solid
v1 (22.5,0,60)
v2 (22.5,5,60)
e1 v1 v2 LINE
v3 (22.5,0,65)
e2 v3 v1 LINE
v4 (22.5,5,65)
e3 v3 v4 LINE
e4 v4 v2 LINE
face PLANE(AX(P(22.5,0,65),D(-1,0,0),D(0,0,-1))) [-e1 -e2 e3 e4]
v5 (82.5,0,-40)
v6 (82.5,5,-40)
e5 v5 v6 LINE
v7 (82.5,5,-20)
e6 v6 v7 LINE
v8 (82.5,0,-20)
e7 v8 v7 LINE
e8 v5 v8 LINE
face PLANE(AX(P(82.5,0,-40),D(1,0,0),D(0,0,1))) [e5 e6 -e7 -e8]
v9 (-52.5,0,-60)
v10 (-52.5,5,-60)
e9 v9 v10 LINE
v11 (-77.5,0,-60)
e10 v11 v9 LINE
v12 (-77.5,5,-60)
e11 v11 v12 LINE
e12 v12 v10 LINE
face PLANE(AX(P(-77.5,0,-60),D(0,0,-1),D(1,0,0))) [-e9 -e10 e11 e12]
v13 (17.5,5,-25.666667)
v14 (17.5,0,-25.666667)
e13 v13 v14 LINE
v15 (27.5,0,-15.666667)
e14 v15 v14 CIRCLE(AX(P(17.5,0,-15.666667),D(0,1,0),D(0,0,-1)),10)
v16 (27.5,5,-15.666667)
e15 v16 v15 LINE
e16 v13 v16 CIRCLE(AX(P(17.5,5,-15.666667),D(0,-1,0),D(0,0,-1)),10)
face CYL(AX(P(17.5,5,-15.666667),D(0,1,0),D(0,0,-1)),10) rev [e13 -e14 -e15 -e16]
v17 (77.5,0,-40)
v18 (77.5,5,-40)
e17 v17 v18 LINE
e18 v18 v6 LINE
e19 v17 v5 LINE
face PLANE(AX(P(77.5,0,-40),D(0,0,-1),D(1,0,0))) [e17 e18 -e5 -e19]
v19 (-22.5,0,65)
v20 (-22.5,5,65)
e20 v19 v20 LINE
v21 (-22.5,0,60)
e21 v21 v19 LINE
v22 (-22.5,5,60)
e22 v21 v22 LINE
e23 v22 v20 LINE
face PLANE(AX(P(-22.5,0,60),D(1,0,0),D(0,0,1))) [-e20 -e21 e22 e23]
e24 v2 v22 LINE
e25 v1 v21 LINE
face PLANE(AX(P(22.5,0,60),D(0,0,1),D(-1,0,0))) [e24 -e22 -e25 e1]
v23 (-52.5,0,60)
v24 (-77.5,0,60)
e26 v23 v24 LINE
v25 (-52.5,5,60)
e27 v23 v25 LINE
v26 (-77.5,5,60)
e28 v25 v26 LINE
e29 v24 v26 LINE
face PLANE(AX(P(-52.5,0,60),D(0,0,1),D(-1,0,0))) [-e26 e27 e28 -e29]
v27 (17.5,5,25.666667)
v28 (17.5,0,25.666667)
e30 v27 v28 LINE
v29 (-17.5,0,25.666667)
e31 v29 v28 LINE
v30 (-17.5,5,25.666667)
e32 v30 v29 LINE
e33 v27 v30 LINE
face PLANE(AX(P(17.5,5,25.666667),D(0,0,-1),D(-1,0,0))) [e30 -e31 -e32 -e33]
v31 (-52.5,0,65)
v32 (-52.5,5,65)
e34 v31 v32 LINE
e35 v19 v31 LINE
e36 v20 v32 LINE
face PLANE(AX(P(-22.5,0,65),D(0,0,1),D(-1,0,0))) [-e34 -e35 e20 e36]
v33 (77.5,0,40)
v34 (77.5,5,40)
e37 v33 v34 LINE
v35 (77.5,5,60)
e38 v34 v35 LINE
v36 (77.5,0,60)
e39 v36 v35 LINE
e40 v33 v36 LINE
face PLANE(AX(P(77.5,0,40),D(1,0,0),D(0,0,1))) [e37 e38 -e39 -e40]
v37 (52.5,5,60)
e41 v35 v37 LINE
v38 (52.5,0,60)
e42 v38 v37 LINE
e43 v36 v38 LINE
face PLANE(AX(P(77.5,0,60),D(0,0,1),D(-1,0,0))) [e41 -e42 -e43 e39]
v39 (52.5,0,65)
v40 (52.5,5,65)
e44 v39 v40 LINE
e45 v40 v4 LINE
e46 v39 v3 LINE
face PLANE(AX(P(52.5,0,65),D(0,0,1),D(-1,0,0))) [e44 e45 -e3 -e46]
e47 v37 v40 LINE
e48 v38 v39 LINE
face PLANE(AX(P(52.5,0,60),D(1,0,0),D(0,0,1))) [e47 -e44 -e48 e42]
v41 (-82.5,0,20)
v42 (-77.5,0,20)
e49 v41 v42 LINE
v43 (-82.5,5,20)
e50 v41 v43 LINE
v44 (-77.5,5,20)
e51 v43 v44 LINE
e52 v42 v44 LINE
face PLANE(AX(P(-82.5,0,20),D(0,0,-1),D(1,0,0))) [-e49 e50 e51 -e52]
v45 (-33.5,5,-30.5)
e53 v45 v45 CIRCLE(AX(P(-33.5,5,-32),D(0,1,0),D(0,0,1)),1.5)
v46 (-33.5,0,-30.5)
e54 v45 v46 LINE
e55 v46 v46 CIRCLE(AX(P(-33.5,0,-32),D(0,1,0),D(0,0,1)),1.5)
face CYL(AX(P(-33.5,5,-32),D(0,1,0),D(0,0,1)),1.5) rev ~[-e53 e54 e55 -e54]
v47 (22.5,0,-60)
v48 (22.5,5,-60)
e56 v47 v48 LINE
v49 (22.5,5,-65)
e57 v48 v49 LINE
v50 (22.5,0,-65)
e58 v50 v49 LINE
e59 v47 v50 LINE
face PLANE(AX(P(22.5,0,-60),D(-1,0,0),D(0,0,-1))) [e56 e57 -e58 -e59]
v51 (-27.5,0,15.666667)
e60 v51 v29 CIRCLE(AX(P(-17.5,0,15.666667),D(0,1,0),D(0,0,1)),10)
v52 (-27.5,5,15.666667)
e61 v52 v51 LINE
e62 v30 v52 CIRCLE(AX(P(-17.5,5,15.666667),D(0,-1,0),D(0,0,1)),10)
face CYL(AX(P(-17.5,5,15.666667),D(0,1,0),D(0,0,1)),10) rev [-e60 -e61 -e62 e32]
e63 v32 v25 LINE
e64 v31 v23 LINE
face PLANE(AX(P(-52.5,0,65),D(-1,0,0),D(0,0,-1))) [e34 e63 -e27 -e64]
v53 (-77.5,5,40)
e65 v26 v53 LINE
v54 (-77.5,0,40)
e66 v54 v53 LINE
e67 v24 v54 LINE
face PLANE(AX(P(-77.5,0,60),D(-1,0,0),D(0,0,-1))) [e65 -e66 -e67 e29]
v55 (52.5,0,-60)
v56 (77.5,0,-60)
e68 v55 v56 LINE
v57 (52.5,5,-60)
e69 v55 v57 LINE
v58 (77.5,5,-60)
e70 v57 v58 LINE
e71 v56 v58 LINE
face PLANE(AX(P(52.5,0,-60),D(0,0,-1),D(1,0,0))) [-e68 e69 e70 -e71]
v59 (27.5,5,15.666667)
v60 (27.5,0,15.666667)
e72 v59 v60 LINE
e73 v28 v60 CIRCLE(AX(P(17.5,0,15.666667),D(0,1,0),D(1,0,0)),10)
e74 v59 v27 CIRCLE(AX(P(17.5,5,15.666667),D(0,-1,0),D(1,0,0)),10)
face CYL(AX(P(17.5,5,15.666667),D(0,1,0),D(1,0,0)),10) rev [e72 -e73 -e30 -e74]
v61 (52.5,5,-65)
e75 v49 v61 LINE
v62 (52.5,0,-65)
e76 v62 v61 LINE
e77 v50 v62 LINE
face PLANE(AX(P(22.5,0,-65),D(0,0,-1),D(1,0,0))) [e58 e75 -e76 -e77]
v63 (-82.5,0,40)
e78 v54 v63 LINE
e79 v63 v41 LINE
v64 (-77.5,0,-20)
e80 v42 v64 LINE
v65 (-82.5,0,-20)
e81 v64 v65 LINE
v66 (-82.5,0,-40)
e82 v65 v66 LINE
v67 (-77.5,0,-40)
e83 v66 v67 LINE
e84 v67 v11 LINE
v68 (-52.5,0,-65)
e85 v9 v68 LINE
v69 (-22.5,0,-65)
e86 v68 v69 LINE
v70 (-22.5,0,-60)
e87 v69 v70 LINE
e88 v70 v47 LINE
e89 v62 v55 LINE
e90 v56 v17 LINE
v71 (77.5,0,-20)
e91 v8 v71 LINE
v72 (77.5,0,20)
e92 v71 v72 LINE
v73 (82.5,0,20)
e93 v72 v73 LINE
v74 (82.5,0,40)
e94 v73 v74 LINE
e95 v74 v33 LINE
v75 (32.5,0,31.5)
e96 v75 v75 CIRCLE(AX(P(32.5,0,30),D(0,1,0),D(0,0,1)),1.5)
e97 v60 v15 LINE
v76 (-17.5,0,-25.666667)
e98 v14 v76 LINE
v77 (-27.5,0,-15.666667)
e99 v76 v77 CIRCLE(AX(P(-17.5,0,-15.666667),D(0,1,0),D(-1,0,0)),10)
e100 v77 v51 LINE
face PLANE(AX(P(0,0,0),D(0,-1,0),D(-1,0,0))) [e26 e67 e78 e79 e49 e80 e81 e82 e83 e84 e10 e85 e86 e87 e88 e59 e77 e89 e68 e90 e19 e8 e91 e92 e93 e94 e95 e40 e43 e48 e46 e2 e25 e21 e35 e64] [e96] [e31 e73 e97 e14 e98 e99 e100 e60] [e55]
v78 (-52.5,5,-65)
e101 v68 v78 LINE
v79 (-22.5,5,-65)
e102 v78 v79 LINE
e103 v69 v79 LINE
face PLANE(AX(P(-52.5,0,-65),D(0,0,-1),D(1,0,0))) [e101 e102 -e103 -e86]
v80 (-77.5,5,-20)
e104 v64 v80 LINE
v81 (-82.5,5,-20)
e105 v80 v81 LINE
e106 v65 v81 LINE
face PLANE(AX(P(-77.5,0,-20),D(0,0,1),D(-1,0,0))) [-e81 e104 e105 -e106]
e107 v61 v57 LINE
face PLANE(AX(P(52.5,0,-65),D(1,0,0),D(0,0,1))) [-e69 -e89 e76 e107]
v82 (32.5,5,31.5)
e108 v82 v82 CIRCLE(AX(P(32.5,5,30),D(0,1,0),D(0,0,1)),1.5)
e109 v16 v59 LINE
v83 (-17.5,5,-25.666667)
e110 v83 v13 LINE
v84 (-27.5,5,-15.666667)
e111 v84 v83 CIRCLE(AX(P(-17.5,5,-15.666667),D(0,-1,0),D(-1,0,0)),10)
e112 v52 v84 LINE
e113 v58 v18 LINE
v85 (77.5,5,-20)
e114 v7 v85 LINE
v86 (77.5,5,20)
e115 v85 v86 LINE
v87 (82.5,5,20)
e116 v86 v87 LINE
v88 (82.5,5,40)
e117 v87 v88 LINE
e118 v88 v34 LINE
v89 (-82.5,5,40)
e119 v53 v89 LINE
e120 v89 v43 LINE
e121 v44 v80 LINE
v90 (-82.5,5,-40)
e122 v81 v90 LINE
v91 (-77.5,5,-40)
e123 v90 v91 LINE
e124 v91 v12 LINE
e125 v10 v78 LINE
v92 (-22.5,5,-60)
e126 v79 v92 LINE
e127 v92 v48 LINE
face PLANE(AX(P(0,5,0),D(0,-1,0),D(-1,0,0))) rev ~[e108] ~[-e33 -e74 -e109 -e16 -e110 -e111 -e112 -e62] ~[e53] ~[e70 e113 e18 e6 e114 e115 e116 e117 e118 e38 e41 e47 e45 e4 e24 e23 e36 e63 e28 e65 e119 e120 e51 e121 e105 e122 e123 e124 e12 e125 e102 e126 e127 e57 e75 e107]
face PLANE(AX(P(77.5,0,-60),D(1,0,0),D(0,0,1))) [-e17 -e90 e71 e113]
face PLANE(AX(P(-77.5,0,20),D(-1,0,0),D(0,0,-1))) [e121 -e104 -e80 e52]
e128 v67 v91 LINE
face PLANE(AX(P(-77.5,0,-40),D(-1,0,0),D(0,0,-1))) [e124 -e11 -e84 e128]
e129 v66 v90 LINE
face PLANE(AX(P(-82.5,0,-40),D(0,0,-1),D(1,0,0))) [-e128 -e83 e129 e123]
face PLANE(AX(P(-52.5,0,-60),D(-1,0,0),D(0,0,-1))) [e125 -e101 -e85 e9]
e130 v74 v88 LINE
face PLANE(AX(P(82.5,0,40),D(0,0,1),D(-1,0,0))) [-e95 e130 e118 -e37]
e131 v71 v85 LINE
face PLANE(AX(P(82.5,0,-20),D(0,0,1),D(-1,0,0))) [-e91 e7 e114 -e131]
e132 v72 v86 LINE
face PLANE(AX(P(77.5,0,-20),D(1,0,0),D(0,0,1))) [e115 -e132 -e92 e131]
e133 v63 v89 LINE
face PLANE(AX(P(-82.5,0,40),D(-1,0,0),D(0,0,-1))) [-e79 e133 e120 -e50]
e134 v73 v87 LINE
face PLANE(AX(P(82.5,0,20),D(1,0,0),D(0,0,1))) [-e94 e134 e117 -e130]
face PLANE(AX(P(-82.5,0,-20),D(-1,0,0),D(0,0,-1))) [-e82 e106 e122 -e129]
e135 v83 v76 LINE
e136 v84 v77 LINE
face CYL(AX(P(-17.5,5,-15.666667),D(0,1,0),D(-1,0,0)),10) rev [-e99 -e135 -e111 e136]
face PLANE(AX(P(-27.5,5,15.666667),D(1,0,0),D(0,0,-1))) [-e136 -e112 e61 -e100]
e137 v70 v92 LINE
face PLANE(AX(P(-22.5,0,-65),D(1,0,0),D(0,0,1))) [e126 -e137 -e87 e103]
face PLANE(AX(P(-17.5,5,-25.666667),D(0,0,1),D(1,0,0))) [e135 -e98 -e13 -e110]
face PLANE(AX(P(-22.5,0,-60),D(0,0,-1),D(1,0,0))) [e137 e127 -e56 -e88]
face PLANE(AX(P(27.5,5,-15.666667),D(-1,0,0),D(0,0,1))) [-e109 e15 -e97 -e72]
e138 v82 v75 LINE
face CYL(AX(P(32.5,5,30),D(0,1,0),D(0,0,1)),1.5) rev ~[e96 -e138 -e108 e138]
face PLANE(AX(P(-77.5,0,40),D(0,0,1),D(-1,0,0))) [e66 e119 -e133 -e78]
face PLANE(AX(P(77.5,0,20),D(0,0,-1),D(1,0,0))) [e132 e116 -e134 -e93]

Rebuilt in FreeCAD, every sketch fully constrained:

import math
import FreeCAD as App
import Part
import Sketcher
from FreeCAD import Vector
Q = App.Units.Quantity


def add_polygon(sketch, points):
    """Adds a closed chain of lines whose ends are joined by coincident constraints."""
    first, n = sketch.GeometryCount, len(points)
    for a, b in zip(points, points[1:] + points[:1]):
        sketch.addGeometry(Part.LineSegment(App.Vector(*a, 0), App.Vector(*b, 0)), False)
    for i in range(n):
        sketch.addConstraint(Sketcher.Constraint("Coincident", first + i, 2, first + (i + 1) % n, 1))

doc = App.newDocument("Part")
params = doc.addObject("Spreadsheet::Sheet", "Params")
for row, (alias, value) in enumerate([
    ("sketch1_width", "25 mm"),
    ("sketch1_width2", "5 mm"),
    ("sketch1_width3", "30 mm"),
    ("sketch1_width4", "45 mm"),
    ("sketch1_height", "20 mm"),
    ("pad1_length", "5 mm"),
    ("sketch2_diameter", "3 mm"),
    ("sketch2_radius", "10 mm"),
    ("sketch2_width", "35 mm"),
    ("pocket1_length", "10 mm"),
], start=1):
    params.set(f"A{row}", alias)
    params.set(f"B{row}", "=" + value)
    params.setAlias(f"B{row}", alias)

body = doc.addObject("PartDesign::Body", "Body")

sketch1 = body.newObject("Sketcher::SketchObject", "Sketch")
sketch1.AttachmentSupport = (doc.getObject("XZ_Plane"), [""])
sketch1.MapMode = "FlatFace"
add_polygon(sketch1, [(-52, -60), (-78, -60), (-78, -40), (-82, -40), (-82, -20), (-78, -20), (-78, 20), (-82, 20), (-82, 40), (-78, 40), (-78, 60), (-52, 60), (-52, 65), (-22, 65), (-22, 60), (22, 60), (22, 65), (52, 65), (52, 60), (78, 60), (78, 40), (82, 40), (82, 20), (78, 20), (78, -20), (82, -20), (82, -40), (78, -40), (78, -60), (52, -60), (52, -65), (22, -65), (22, -60), (-22, -60), (-22, -65), (-52, -65)])
sketch1.addConstraint(Sketcher.Constraint("Horizontal", 0))
sketch1.addConstraint(Sketcher.Constraint("Vertical", 1))
sketch1.addConstraint(Sketcher.Constraint("Horizontal", 2))
sketch1.addConstraint(Sketcher.Constraint("Vertical", 3))
sketch1.addConstraint(Sketcher.Constraint("Horizontal", 4))
sketch1.addConstraint(Sketcher.Constraint("Vertical", 5))
sketch1.addConstraint(Sketcher.Constraint("Horizontal", 6))
sketch1.addConstraint(Sketcher.Constraint("Vertical", 7))
sketch1.addConstraint(Sketcher.Constraint("Horizontal", 8))
sketch1.addConstraint(Sketcher.Constraint("Vertical", 9))
sketch1.addConstraint(Sketcher.Constraint("Horizontal", 10))
sketch1.addConstraint(Sketcher.Constraint("Vertical", 11))
sketch1.addConstraint(Sketcher.Constraint("Horizontal", 12))
sketch1.addConstraint(Sketcher.Constraint("Vertical", 13))
sketch1.addConstraint(Sketcher.Constraint("Horizontal", 14))
sketch1.addConstraint(Sketcher.Constraint("Vertical", 15))
sketch1.addConstraint(Sketcher.Constraint("Horizontal", 16))
sketch1.addConstraint(Sketcher.Constraint("Vertical", 17))
sketch1.addConstraint(Sketcher.Constraint("Horizontal", 18))
sketch1.addConstraint(Sketcher.Constraint("Vertical", 19))
sketch1.addConstraint(Sketcher.Constraint("Horizontal", 20))
sketch1.addConstraint(Sketcher.Constraint("Vertical", 21))
sketch1.addConstraint(Sketcher.Constraint("Horizontal", 22))
sketch1.addConstraint(Sketcher.Constraint("Vertical", 23))
sketch1.addConstraint(Sketcher.Constraint("Horizontal", 24))
sketch1.addConstraint(Sketcher.Constraint("Vertical", 25))
sketch1.addConstraint(Sketcher.Constraint("Horizontal", 26))
sketch1.addConstraint(Sketcher.Constraint("Vertical", 27))
sketch1.addConstraint(Sketcher.Constraint("Horizontal", 28))
sketch1.addConstraint(Sketcher.Constraint("Vertical", 29))
sketch1.addConstraint(Sketcher.Constraint("Horizontal", 30))
sketch1.addConstraint(Sketcher.Constraint("Vertical", 31))
sketch1.addConstraint(Sketcher.Constraint("Horizontal", 32))
sketch1.addConstraint(Sketcher.Constraint("Vertical", 33))
sketch1.addConstraint(Sketcher.Constraint("Horizontal", 34))
sketch1.addConstraint(Sketcher.Constraint("Vertical", 35))
sketch1.addConstraint(Sketcher.Constraint("Symmetric", 0, 2, 18, 2, -1, 1))
sketch1.addConstraint(Sketcher.Constraint("Symmetric", 2, 2, 20, 2, -1, 1))
sketch1.addConstraint(Sketcher.Constraint("Symmetric", 4, 2, 22, 2, -1, 1))
sketch1.addConstraint(Sketcher.Constraint("Symmetric", 6, 2, 24, 2, -1, 1))
sketch1.addConstraint(Sketcher.Constraint("Symmetric", 8, 2, 26, 2, -1, 1))
sketch1.addConstraint(Sketcher.Constraint("Symmetric", 10, 2, 28, 2, -1, 1))
sketch1.addConstraint(Sketcher.Constraint("Symmetric", 12, 2, 30, 2, -1, 1))
sketch1.addConstraint(Sketcher.Constraint("Symmetric", 14, 2, 32, 2, -1, 1))
sketch1.addConstraint(Sketcher.Constraint("Symmetric", 16, 2, 34, 2, -1, 1))
sketch1.addConstraint(Sketcher.Constraint("Symmetric", 12, 2, 15, 2, -2))
sketch1.addConstraint(Sketcher.Constraint("Symmetric", 10, 2, 17, 2, -2))
sketch1.addConstraint(Sketcher.Constraint("Symmetric", 8, 2, 19, 2, -2))
sketch1.addConstraint(Sketcher.Constraint("Symmetric", 6, 2, 21, 2, -2))
sketch1.addConstraint(Sketcher.Constraint("Horizontal", 10, 2, 13, 2))
sketch1.addConstraint(Sketcher.Constraint("Vertical", 1, 2, 4, 2))
sketch1.addConstraint(Sketcher.Constraint("Equal", 1, 3))
sketch1.addConstraint(Sketcher.Constraint("Equal", 26, 11))
sketch1.addConstraint(Sketcher.Constraint("DistanceX", 0, 2, 0, 1, Q("25 mm")))
sketch1.addConstraint(Sketcher.Constraint("DistanceX", 2, 2, 2, 1, Q("5 mm")))
sketch1.addConstraint(Sketcher.Constraint("DistanceX", 12, 1, 12, 2, Q("30 mm")))
sketch1.addConstraint(Sketcher.Constraint("DistanceX", 14, 1, 14, 2, Q("45 mm")))
sketch1.addConstraint(Sketcher.Constraint("DistanceY", 1, 1, 1, 2, Q("20 mm")))
sketch1.addConstraint(Sketcher.Constraint("DistanceY", 5, 1, 5, 2, Q("40 mm")))
sketch1.setExpression("Constraints[89]", "Params.sketch1_width")
sketch1.setExpression("Constraints[90]", "Params.sketch1_width2")
sketch1.setExpression("Constraints[91]", "Params.sketch1_width3")
sketch1.setExpression("Constraints[92]", "Params.sketch1_width4")
sketch1.setExpression("Constraints[93]", "Params.sketch1_height")
pad1 = body.newObject("PartDesign::Pad", "Pad")
pad1.Profile = sketch1
pad1.setExpression("Length", "Params.pad1_length")
pad1.Reversed = True

sketch2 = body.newObject("Sketcher::SketchObject", "Sketch001")
sketch2.AttachmentSupport = (doc.getObject("XZ_Plane"), [""])
sketch2.MapMode = "FlatFace"
sketch2.AttachmentOffset = App.Placement(Vector(0, 0, -5), App.Rotation())
sketch2.addGeometry(Part.Circle(Vector(-33.5, -32, 0), Vector(0, 0, 1), 1.5), False)
sketch2.addGeometry(Part.Circle(Vector(32.5, 30, 0), Vector(0, 0, 1), 1.5), False)
sketch2.addGeometry(Part.LineSegment(Vector(-17.5, 25.7, 0), Vector(17.5, 25.7, 0)), False)
sketch2.addGeometry(Part.ArcOfCircle(Part.Circle(Vector(17.5, 15.7, 0), Vector(0, 0, 1), 10), math.radians(0), math.radians(90)), False)
sketch2.addGeometry(Part.LineSegment(Vector(27.5, 15.7, 0), Vector(27.5, -15.7, 0)), False)
sketch2.addGeometry(Part.ArcOfCircle(Part.Circle(Vector(17.5, -15.7, 0), Vector(0, 0, 1), 10), math.radians(-90), math.radians(0)), False)
sketch2.addGeometry(Part.LineSegment(Vector(17.5, -25.7, 0), Vector(-17.5, -25.7, 0)), False)
sketch2.addGeometry(Part.ArcOfCircle(Part.Circle(Vector(-17.5, -15.7, 0), Vector(0, 0, 1), 10), math.radians(180), math.radians(270)), False)
sketch2.addGeometry(Part.LineSegment(Vector(-27.5, -15.7, 0), Vector(-27.5, 15.7, 0)), False)
sketch2.addGeometry(Part.ArcOfCircle(Part.Circle(Vector(-17.5, 15.7, 0), Vector(0, 0, 1), 10), math.radians(90), math.radians(180)), False)
sketch2.addConstraint(Sketcher.Constraint("Tangent", 2, 2, 3, 2))
sketch2.addConstraint(Sketcher.Constraint("Tangent", 3, 1, 4, 1))
sketch2.addConstraint(Sketcher.Constraint("Tangent", 4, 2, 5, 2))
sketch2.addConstraint(Sketcher.Constraint("Tangent", 5, 1, 6, 1))
sketch2.addConstraint(Sketcher.Constraint("Tangent", 6, 2, 7, 2))
sketch2.addConstraint(Sketcher.Constraint("Tangent", 7, 1, 8, 1))
sketch2.addConstraint(Sketcher.Constraint("Tangent", 8, 2, 9, 2))
sketch2.addConstraint(Sketcher.Constraint("Tangent", 9, 1, 2, 1))
sketch2.addConstraint(Sketcher.Constraint("Horizontal", 2))
sketch2.addConstraint(Sketcher.Constraint("Vertical", 4))
sketch2.addConstraint(Sketcher.Constraint("Horizontal", 6))
sketch2.addConstraint(Sketcher.Constraint("Vertical", 8))
sketch2.addConstraint(Sketcher.Constraint("Equal", 0, 1))
sketch2.addConstraint(Sketcher.Constraint("Equal", 3, 5))
sketch2.addConstraint(Sketcher.Constraint("Equal", 5, 7))
sketch2.addConstraint(Sketcher.Constraint("Equal", 7, 9))
sketch2.addConstraint(Sketcher.Constraint("Symmetric", 3, 3, 7, 3, -1, 1))
sketch2.addConstraint(Sketcher.Constraint("Diameter", 0, Q("3 mm")))
sketch2.addConstraint(Sketcher.Constraint("Radius", 3, Q("10 mm")))
sketch2.addConstraint(Sketcher.Constraint("DistanceX", 2, 1, 2, 2, Q("35 mm")))
sketch2.addConstraint(Sketcher.Constraint("DistanceY", 0, 3, -1, 1, Q("32 mm")))
sketch2.addConstraint(Sketcher.Constraint("DistanceY", -1, 1, 1, 3, Q("30 mm")))
sketch2.addConstraint(Sketcher.Constraint("DistanceX", 0, 3, 1, 3, Q("66 mm")))
sketch2.addConstraint(Sketcher.Constraint("DistanceX", 3, 3, 1, 3, Q("15 mm")))
sketch2.addConstraint(Sketcher.Constraint("DistanceY", 4, 2, 4, 1, Q("31.333333 mm")))
sketch2.setExpression("Constraints[17]", "Params.sketch2_diameter")
sketch2.setExpression("Constraints[18]", "Params.sketch2_radius")
sketch2.setExpression("Constraints[19]", "Params.sketch2_width")
pocket1 = body.newObject("PartDesign::Pocket", "Pocket")
pocket1.Profile = sketch2
pocket1.setExpression("Length", "Params.pocket1_length")
pocket1.Reversed = True

doc.recompute()
